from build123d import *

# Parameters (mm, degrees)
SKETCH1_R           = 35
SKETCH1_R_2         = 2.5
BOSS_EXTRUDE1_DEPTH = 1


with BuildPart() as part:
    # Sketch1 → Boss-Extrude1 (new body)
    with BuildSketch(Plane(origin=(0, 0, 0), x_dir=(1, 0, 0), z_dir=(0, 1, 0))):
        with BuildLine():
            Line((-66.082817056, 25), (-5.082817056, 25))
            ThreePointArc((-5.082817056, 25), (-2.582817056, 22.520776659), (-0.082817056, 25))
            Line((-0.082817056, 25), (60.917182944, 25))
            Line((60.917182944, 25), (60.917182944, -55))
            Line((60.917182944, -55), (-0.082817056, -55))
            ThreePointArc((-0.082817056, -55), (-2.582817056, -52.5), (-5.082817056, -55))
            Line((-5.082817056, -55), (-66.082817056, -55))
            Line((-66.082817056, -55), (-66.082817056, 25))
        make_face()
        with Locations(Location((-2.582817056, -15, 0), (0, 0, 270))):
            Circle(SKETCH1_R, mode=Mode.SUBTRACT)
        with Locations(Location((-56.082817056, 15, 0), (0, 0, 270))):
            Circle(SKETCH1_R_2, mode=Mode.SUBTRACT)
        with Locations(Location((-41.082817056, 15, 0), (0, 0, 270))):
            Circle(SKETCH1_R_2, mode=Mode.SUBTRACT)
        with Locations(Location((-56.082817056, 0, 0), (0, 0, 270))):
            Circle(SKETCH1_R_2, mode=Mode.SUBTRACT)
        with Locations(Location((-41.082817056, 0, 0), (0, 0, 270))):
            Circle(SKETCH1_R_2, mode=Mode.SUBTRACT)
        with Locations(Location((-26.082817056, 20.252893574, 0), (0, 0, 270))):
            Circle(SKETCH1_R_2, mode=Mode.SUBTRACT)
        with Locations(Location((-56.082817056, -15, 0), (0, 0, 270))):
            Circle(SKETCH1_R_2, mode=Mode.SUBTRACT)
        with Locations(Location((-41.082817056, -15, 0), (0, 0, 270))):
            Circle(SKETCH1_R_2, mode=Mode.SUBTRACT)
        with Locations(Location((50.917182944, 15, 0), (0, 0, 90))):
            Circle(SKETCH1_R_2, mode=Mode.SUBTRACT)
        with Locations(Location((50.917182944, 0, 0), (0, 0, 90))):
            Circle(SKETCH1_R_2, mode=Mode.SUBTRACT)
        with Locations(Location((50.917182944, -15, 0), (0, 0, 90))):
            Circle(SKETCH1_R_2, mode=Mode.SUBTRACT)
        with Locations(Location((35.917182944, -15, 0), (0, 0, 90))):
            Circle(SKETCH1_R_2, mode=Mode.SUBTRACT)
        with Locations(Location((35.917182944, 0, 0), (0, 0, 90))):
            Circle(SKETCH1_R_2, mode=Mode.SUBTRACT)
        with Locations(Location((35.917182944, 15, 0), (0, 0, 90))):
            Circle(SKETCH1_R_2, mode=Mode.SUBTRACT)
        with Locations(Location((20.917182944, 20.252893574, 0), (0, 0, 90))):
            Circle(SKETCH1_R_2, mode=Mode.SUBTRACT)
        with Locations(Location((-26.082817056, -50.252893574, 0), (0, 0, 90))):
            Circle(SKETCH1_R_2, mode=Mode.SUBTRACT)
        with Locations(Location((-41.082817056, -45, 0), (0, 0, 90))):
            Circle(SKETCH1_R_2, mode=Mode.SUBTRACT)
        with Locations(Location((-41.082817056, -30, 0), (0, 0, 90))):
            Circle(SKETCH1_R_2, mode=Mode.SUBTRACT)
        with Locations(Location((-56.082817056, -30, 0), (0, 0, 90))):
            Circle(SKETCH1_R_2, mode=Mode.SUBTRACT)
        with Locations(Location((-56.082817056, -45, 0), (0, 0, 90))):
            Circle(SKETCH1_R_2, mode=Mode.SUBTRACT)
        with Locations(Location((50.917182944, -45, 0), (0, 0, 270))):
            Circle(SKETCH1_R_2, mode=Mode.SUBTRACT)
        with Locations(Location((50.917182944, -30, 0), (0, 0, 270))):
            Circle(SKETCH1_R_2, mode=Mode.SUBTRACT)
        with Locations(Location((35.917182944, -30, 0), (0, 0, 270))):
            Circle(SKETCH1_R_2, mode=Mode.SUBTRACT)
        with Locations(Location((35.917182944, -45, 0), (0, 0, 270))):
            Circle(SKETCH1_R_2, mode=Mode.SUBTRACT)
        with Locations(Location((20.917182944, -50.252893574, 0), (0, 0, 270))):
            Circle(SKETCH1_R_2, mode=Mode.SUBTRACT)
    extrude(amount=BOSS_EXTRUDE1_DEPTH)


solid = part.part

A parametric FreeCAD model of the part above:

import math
import FreeCAD as App
import Part
import Sketcher

V = App.Vector

doc = App.newDocument("Part")
params = doc.addObject("Spreadsheet::Sheet", "Params")
for row, (alias, value) in enumerate([
    ("sketch1_diameter", "5 mm"),
    ("sketch1_diameter2", "70 mm"),
    ("sketch1_width", "61 mm"),
    ("sketch1_height", "80 mm"),
    ("pad1_length", "1 mm"),
], start=1):
    params.set(f"A{row}", alias)
    params.set(f"B{row}", "=" + value)
    params.setAlias(f"B{row}", alias)

body = doc.addObject("PartDesign::Body", "Body")

sketch1 = body.newObject("Sketcher::SketchObject", "Sketch")
sketch1.AttachmentSupport = (doc.getObject("XZ_Plane"), [""])
sketch1.MapMode = "FlatFace"
sketch1.addGeometry(Part.LineSegment(V(-5.082817, -25, 0), V(-66.082817, -25, 0)), False)
sketch1.addGeometry(Part.LineSegment(V(-66.082817, -25, 0), V(-66.082817, 55, 0)), False)
sketch1.addGeometry(Part.LineSegment(V(-66.082817, 55, 0), V(-5.082817, 55, 0)), False)
sketch1.addGeometry(Part.ArcOfCircle(Part.Circle(V(-2.582817, 55, 0), V(0, 0, 1), 2.5), math.radians(180), math.radians(360)), False)
sketch1.addGeometry(Part.LineSegment(V(-0.082817, 55, 0), V(60.917183, 55, 0)), False)
sketch1.addGeometry(Part.LineSegment(V(60.917183, 55, 0), V(60.917183, -25, 0)), False)
sketch1.addGeometry(Part.LineSegment(V(60.917183, -25, 0), V(-0.082817, -25, 0)), False)
sketch1.addGeometry(Part.ArcOfCircle(Part.Circle(V(-2.582817, -25.020864, 0), V(0, 0, 1), 2.500087), math.radians(0.47815), math.radians(179.52185)), False)
sketch1.addGeometry(Part.Circle(V(50.917183, 45, 0), V(0, 0, 1), 2.5), False)
sketch1.addGeometry(Part.Circle(V(35.917183, 45, 0), V(0, 0, 1), 2.5), False)
sketch1.addGeometry(Part.Circle(V(20.917183, 50.252894, 0), V(0, 0, 1), 2.5), False)
sketch1.addGeometry(Part.Circle(V(50.917183, 30, 0), V(0, 0, 1), 2.5), False)
sketch1.addGeometry(Part.Circle(V(35.917183, 30, 0), V(0, 0, 1), 2.5), False)
sketch1.addGeometry(Part.Circle(V(-26.082817, 50.252894, 0), V(0, 0, 1), 2.5), False)
sketch1.addGeometry(Part.Circle(V(-41.082817, 45, 0), V(0, 0, 1), 2.5), False)
sketch1.addGeometry(Part.Circle(V(-56.082817, 45, 0), V(0, 0, 1), 2.5), False)
sketch1.addGeometry(Part.Circle(V(-41.082817, 30, 0), V(0, 0, 1), 2.5), False)
sketch1.addGeometry(Part.Circle(V(-56.082817, 30, 0), V(0, 0, 1), 2.5), False)
sketch1.addGeometry(Part.Circle(V(50.917183, 15, 0), V(0, 0, 1), 2.5), False)
sketch1.addGeometry(Part.Circle(V(35.917183, 15, 0), V(0, 0, 1), 2.5), False)
sketch1.addGeometry(Part.Circle(V(50.917183, 0, 0), V(0, 0, 1), 2.5), False)
sketch1.addGeometry(Part.Circle(V(35.917183, 0, 0), V(0, 0, 1), 2.5), False)
sketch1.addGeometry(Part.Circle(V(50.917183, -15, 0), V(0, 0, 1), 2.5), False)
sketch1.addGeometry(Part.Circle(V(35.917183, -15, 0), V(0, 0, 1), 2.5), False)
sketch1.addGeometry(Part.Circle(V(20.917183, -20.252894, 0), V(0, 0, 1), 2.5), False)
sketch1.addGeometry(Part.Circle(V(-2.582817, 15, 0), V(0, 0, 1), 35), False)
sketch1.addGeometry(Part.Circle(V(-41.082817, 15, 0), V(0, 0, 1), 2.5), False)
sketch1.addGeometry(Part.Circle(V(-56.082817, 15, 0), V(0, 0, 1), 2.5), False)
sketch1.addGeometry(Part.Circle(V(-41.082817, 0, 0), V(0, 0, 1), 2.5), False)
sketch1.addGeometry(Part.Circle(V(-56.082817, 0, 0), V(0, 0, 1), 2.5), False)
sketch1.addGeometry(Part.Circle(V(-26.082817, -20.252894, 0), V(0, 0, 1), 2.5), False)
sketch1.addGeometry(Part.Circle(V(-41.082817, -15, 0), V(0, 0, 1), 2.5), False)
sketch1.addGeometry(Part.Circle(V(-56.082817, -15, 0), V(0, 0, 1), 2.5), False)
sketch1.addConstraint(Sketcher.Constraint("Coincident", 0, 2, 1, 1))
sketch1.addConstraint(Sketcher.Constraint("Coincident", 1, 2, 2, 1))
sketch1.addConstraint(Sketcher.Constraint("Coincident", 2, 2, 3, 1))
sketch1.addConstraint(Sketcher.Constraint("Coincident", 3, 2, 4, 1))
sketch1.addConstraint(Sketcher.Constraint("Coincident", 4, 2, 5, 1))
sketch1.addConstraint(Sketcher.Constraint("Coincident", 5, 2, 6, 1))
sketch1.addConstraint(Sketcher.Constraint("Coincident", 6, 2, 7, 1))
sketch1.addConstraint(Sketcher.Constraint("Coincident", 7, 2, 0, 1))
sketch1.addConstraint(Sketcher.Constraint("Horizontal", 0))
sketch1.addConstraint(Sketcher.Constraint("Vertical", 1))
sketch1.addConstraint(Sketcher.Constraint("Horizontal", 2))
sketch1.addConstraint(Sketcher.Constraint("Horizontal", 4))
sketch1.addConstraint(Sketcher.Constraint("Vertical", 5))
sketch1.addConstraint(Sketcher.Constraint("Horizontal", 6))
sketch1.addConstraint(Sketcher.Constraint("Equal", 3, 8))
sketch1.addConstraint(Sketcher.Constraint("Equal", 8, 9))
sketch1.addConstraint(Sketcher.Constraint("Equal", 9, 10))
sketch1.addConstraint(Sketcher.Constraint("Equal", 10, 11))
sketch1.addConstraint(Sketcher.Constraint("Equal", 11, 12))
sketch1.addConstraint(Sketcher.Constraint("Equal", 12, 13))
sketch1.addConstraint(Sketcher.Constraint("Equal", 13, 14))
sketch1.addConstraint(Sketcher.Constraint("Equal", 14, 15))
sketch1.addConstraint(Sketcher.Constraint("Equal", 15, 16))
sketch1.addConstraint(Sketcher.Constraint("Equal", 16, 17))
sketch1.addConstraint(Sketcher.Constraint("Equal", 17, 18))
sketch1.addConstraint(Sketcher.Constraint("Equal", 18, 19))
sketch1.addConstraint(Sketcher.Constraint("Equal", 19, 20))
sketch1.addConstraint(Sketcher.Constraint("Equal", 20, 21))
sketch1.addConstraint(Sketcher.Constraint("Equal", 21, 22))
sketch1.addConstraint(Sketcher.Constraint("Equal", 22, 23))
sketch1.addConstraint(Sketcher.Constraint("Equal", 23, 24))
sketch1.addConstraint(Sketcher.Constraint("Equal", 24, 26))
sketch1.addConstraint(Sketcher.Constraint("Equal", 26, 27))
sketch1.addConstraint(Sketcher.Constraint("Equal", 27, 28))
sketch1.addConstraint(Sketcher.Constraint("Equal", 28, 29))
sketch1.addConstraint(Sketcher.Constraint("Equal", 29, 30))
sketch1.addConstraint(Sketcher.Constraint("Equal", 30, 31))
sketch1.addConstraint(Sketcher.Constraint("Equal", 31, 32))
sketch1.addConstraint(Sketcher.Constraint("Symmetric", 18, 3, 22, 3, -1))
sketch1.addConstraint(Sketcher.Constraint("Symmetric", 19, 3, 23, 3, -1))
sketch1.addConstraint(Sketcher.Constraint("Symmetric", 26, 3, 31, 3, -1))
sketch1.addConstraint(Sketcher.Constraint("Symmetric", 27, 3, 32, 3, -1))
sketch1.addConstraint(Sketcher.Constraint("PointOnObject", 20, 3, -1))
sketch1.addConstraint(Sketcher.Constraint("PointOnObject", 21, 3, -1))
sketch1.addConstraint(Sketcher.Constraint("PointOnObject", 28, 3, -1))
sketch1.addConstraint(Sketcher.Constraint("PointOnObject", 29, 3, -1))
sketch1.addConstraint(Sketcher.Constraint("Horizontal", 8, 3, 9, 3))
sketch1.addConstraint(Sketcher.Constraint("Horizontal", 11, 3, 12, 3))
sketch1.addConstraint(Sketcher.Constraint("Horizontal", 10, 3, 13, 3))
sketch1.addConstraint(Sketcher.Constraint("Horizontal", 9, 3, 14, 3))
sketch1.addConstraint(Sketcher.Constraint("Horizontal", 14, 3, 15, 3))
sketch1.addConstraint(Sketcher.Constraint("Horizontal", 12, 3, 16, 3))
sketch1.addConstraint(Sketcher.Constraint("Horizontal", 16, 3, 17, 3))
sketch1.addConstraint(Sketcher.Constraint("Horizontal", 18, 3, 19, 3))
sketch1.addConstraint(Sketcher.Constraint("Horizontal", 19, 3, 25, 3))
sketch1.addConstraint(Sketcher.Constraint("Horizontal", 25, 3, 26, 3))
sketch1.addConstraint(Sketcher.Constraint("Horizontal", 26, 3, 27, 3))
sketch1.addConstraint(Sketcher.Constraint("Horizontal", 24, 3, 30, 3))
sketch1.addConstraint(Sketcher.Constraint("Horizontal", 3, 3, 1, 2))
sketch1.addConstraint(Sketcher.Constraint("Horizontal", 2, 2, 3, 2))
sketch1.addConstraint(Sketcher.Constraint("Horizontal", 0, 2, 5, 2))
sketch1.addConstraint(Sketcher.Constraint("Vertical", 3, 3, 7, 3))
sketch1.addConstraint(Sketcher.Constraint("Vertical", 8, 3, 11, 3))
sketch1.addConstraint(Sketcher.Constraint("Vertical", 9, 3, 12, 3))
sketch1.addConstraint(Sketcher.Constraint("Vertical", 14, 3, 16, 3))
sketch1.addConstraint(Sketcher.Constraint("Vertical", 15, 3, 17, 3))
sketch1.addConstraint(Sketcher.Constraint("Vertical", 11, 3, 18, 3))
sketch1.addConstraint(Sketcher.Constraint("Vertical", 12, 3, 19, 3))
sketch1.addConstraint(Sketcher.Constraint("Vertical", 18, 3, 20, 3))
sketch1.addConstraint(Sketcher.Constraint("Vertical", 19, 3, 21, 3))
sketch1.addConstraint(Sketcher.Constraint("Vertical", 10, 3, 24, 3))
sketch1.addConstraint(Sketcher.Constraint("Vertical", 7, 3, 25, 3))
sketch1.addConstraint(Sketcher.Constraint("Vertical", 16, 3, 26, 3))
sketch1.addConstraint(Sketcher.Constraint("Vertical", 17, 3, 27, 3))
sketch1.addConstraint(Sketcher.Constraint("Vertical", 26, 3, 28, 3))
sketch1.addConstraint(Sketcher.Constraint("Vertical", 27, 3, 29, 3))
sketch1.addConstraint(Sketcher.Constraint("Vertical", 13, 3, 30, 3))
sketch1.addConstraint(Sketcher.Constraint("Vertical", 3, 2, 6, 2))
sketch1.addConstraint(Sketcher.Constraint("Equal", 2, 4))
sketch1.addConstraint(Sketcher.Constraint("Diameter", 8, 5.0))
sketch1.addConstraint(Sketcher.Constraint("Diameter", 25, 70.0))
sketch1.addConstraint(Sketcher.Constraint("DistanceX", 0, 2, 0, 1, 61.0))
sketch1.addConstraint(Sketcher.Constraint("DistanceY", 1, 1, 1, 2, 80.0))
sketch1.addConstraint(Sketcher.Constraint("DistanceY", -1, 1, 3, 3, 55.0))
sketch1.addConstraint(Sketcher.Constraint("DistanceY", -1, 1, 8, 3, 45.0))
sketch1.addConstraint(Sketcher.Constraint("DistanceY", -1, 1, 11, 3, 30.0))
sketch1.addConstraint(Sketcher.Constraint("DistanceY", -1, 1, 18, 3, 15.0))
sketch1.addConstraint(Sketcher.Constraint("DistanceX", 9, 3, 8, 3, 15.0))
sketch1.addConstraint(Sketcher.Constraint("DistanceX", 10, 3, 9, 3, 15.0))
sketch1.addConstraint(Sketcher.Constraint("DistanceX", 13, 3, 10, 3, 47.0))
sketch1.addConstraint(Sketcher.Constraint("DistanceX", 14, 3, 13, 3, 15.0))
sketch1.addConstraint(Sketcher.Constraint("DistanceX", 15, 3, 14, 3, 15.0))
sketch1.addConstraint(Sketcher.Constraint("DistanceX", 0, 2, 32, 3, 10.0))
sketch1.addConstraint(Sketcher.Constraint("Radius", 7, 2.500087))
sketch1.addConstraint(Sketcher.Constraint("DistanceY", 7, 3, 24, 3, 4.76797))
sketch1.addConstraint(Sketcher.Constraint("DistanceX", 3, 3, -1, 1, 2.582817))
sketch1.addConstraint(Sketcher.Constraint("DistanceY", -1, 1, 10, 3, 50.252894))
sketch1.setExpression("Constraints[79]", "Params.sketch1_diameter")
sketch1.setExpression("Constraints[80]", "Params.sketch1_diameter2")
sketch1.setExpression("Constraints[81]", "Params.sketch1_width")
sketch1.setExpression("Constraints[82]", "Params.sketch1_height")
pad1 = body.newObject("PartDesign::Pad", "Pad")
pad1.Profile = sketch1
pad1.setExpression("Length", "Params.pad1_length")
pad1.Reversed = True

doc.recompute()
